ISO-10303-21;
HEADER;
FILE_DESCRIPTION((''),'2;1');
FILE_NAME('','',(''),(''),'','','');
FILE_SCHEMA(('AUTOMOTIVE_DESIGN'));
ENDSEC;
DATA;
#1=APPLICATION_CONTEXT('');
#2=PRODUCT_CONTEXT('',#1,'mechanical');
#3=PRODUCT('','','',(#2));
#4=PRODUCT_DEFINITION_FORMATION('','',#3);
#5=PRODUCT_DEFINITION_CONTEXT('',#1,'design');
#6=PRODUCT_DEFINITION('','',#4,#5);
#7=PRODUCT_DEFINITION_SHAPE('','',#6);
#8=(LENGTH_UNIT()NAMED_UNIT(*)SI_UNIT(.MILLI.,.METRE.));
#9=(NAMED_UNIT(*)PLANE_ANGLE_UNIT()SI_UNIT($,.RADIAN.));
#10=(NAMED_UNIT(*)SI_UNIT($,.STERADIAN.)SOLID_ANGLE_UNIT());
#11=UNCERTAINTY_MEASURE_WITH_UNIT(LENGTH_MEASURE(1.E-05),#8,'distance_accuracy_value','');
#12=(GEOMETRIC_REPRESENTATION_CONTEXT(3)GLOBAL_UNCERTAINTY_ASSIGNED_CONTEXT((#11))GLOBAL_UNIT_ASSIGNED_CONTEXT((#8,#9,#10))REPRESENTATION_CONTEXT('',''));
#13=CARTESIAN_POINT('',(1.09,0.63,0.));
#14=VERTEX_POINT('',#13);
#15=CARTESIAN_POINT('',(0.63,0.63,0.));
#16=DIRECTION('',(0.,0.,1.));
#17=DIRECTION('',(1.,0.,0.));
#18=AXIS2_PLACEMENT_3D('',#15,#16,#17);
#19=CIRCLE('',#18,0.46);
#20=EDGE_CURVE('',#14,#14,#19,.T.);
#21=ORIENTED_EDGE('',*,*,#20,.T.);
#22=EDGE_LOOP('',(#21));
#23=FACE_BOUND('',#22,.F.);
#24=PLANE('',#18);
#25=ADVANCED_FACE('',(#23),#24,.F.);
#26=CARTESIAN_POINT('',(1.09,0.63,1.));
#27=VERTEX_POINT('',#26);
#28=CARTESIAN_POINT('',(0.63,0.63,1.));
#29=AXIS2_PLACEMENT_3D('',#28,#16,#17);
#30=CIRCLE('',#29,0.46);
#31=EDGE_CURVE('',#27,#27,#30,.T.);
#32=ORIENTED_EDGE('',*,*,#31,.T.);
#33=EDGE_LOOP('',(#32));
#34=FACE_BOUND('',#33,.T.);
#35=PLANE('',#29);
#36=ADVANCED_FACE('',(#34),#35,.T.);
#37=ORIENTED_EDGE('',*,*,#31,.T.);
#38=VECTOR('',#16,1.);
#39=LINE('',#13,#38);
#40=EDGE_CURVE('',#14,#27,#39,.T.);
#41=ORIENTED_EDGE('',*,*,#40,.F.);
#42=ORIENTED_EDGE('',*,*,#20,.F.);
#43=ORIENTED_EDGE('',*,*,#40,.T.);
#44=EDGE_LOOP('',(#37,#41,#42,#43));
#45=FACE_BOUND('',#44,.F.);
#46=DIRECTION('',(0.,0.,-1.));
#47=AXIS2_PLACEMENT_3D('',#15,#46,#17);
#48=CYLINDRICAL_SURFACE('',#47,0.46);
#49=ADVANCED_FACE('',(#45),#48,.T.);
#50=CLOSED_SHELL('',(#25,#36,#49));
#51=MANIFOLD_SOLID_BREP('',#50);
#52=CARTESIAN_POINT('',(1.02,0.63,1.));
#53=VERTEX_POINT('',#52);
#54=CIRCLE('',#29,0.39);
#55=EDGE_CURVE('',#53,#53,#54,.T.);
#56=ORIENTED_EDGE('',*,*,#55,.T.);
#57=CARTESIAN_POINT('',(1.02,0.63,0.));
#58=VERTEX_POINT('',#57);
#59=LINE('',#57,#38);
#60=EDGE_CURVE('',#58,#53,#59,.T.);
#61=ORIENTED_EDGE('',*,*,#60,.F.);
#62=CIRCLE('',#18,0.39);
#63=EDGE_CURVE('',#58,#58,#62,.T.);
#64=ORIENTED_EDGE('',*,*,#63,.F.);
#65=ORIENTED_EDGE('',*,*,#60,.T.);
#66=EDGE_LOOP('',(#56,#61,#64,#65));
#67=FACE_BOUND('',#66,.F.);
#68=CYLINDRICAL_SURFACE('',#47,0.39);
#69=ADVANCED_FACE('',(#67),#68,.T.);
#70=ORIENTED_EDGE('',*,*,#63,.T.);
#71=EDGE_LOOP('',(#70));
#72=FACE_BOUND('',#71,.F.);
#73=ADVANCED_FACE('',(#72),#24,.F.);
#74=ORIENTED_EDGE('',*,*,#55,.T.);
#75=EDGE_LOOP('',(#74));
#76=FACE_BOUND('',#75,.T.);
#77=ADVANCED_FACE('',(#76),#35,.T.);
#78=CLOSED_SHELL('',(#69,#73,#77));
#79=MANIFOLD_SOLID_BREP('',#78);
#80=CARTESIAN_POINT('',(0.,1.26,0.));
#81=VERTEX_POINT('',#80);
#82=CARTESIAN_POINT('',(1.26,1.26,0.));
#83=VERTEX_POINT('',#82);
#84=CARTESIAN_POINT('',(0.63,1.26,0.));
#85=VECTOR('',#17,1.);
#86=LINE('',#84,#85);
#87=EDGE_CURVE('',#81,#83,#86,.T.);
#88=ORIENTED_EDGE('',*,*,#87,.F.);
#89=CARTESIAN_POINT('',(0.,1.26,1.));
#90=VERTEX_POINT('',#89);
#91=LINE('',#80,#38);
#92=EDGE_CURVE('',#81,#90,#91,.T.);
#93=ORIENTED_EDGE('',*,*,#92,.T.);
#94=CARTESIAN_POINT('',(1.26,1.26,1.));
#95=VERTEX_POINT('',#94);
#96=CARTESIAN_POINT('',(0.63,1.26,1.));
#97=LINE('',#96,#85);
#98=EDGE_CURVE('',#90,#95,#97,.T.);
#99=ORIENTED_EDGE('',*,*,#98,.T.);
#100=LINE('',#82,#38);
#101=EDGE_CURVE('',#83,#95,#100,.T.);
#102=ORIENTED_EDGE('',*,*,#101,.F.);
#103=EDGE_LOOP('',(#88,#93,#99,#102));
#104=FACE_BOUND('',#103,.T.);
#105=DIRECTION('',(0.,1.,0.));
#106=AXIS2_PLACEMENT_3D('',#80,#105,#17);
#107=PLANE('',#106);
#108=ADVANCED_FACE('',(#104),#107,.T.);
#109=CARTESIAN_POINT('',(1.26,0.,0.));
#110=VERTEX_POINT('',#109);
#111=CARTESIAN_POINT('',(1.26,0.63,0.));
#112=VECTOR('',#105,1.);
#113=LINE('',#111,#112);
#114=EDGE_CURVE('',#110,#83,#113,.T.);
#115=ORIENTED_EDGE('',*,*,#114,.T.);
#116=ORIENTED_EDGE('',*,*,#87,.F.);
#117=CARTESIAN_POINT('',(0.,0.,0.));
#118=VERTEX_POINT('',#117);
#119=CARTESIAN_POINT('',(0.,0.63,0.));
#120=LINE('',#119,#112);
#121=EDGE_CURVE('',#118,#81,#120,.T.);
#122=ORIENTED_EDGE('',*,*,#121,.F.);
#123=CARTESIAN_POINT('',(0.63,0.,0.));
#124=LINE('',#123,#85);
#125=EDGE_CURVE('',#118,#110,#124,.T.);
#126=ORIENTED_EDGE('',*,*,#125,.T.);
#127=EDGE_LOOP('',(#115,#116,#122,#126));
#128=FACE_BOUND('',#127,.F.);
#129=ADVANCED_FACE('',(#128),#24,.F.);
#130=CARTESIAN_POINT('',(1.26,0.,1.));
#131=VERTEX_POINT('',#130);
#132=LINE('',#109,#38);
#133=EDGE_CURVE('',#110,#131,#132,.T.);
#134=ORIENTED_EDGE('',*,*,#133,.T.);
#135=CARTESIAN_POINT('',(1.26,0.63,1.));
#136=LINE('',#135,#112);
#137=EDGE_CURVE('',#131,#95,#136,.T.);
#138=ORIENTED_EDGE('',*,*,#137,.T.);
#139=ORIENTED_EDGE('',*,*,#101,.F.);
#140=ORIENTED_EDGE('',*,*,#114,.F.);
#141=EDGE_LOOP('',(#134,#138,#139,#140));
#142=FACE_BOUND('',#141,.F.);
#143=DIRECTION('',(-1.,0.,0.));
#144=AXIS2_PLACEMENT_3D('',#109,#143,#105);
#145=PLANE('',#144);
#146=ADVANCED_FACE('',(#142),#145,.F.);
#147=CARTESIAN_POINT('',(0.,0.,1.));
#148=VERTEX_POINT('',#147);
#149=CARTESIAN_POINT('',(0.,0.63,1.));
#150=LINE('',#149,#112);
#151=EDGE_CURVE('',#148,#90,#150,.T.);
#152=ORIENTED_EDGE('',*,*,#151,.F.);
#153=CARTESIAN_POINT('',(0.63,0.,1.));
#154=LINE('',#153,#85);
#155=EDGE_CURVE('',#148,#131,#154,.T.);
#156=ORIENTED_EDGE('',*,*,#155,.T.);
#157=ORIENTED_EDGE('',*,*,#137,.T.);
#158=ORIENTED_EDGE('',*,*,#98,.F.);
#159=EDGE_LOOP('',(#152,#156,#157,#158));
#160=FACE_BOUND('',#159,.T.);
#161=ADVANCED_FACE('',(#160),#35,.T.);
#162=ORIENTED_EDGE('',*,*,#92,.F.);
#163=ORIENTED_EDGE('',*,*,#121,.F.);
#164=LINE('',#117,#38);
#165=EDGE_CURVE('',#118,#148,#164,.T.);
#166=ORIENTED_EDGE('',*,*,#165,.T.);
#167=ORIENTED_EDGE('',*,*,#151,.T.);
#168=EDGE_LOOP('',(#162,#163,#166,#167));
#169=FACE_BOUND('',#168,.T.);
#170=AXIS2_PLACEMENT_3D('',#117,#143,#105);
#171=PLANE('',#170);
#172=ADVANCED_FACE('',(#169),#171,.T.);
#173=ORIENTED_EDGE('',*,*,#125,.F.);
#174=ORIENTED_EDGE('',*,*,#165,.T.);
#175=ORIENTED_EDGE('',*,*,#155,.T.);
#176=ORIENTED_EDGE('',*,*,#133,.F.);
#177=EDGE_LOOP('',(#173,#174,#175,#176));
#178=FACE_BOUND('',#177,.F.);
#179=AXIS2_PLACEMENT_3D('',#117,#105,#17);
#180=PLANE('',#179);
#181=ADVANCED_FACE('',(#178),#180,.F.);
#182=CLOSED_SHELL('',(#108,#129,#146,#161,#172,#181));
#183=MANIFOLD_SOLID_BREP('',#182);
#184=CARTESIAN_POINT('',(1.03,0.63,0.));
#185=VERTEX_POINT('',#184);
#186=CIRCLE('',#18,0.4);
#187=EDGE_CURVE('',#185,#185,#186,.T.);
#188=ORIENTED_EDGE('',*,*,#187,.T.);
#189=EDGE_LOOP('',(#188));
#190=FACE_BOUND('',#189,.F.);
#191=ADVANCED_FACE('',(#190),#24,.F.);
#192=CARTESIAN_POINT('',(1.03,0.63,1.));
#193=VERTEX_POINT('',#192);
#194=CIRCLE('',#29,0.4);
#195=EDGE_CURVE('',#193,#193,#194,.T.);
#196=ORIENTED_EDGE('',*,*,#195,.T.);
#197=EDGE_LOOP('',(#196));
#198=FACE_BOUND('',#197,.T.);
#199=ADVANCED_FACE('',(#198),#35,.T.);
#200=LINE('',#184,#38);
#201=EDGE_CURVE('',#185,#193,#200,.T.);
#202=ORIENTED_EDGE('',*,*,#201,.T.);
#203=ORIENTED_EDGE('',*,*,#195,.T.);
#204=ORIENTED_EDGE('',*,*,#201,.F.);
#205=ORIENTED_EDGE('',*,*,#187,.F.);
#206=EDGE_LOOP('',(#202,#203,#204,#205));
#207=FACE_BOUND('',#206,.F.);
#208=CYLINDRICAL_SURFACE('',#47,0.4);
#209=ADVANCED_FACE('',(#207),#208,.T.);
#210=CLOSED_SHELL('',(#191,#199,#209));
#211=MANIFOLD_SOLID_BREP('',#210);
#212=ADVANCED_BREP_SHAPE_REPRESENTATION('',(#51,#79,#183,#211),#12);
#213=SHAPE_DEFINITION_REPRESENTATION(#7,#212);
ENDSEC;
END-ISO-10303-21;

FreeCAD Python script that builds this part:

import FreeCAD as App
import Part
import Sketcher

V = App.Vector
Q = App.Units.Quantity


def add_polygon(sketch, points):
    """Adds a closed chain of lines whose ends are joined by coincident constraints."""
    first, n = sketch.GeometryCount, len(points)
    for a, b in zip(points, points[1:] + points[:1]):
        sketch.addGeometry(Part.LineSegment(App.Vector(*a, 0), App.Vector(*b, 0)), False)
    for i in range(n):
        sketch.addConstraint(Sketcher.Constraint("Coincident", first + i, 2, first + (i + 1) % n, 1))

doc = App.newDocument("Part")
params = doc.addObject("Spreadsheet::Sheet", "Params")
for row, (alias, value) in enumerate([
    ("sketch1_width", "1.26 mm"),
    ("pad1_length", "1 mm"),
    ("sketch2_diameter", "0.78 mm"),
    ("pad2_length", "1 mm"),
    ("sketch3_diameter", "0.92 mm"),
    ("pad3_length", "1 mm"),
    ("sketch4_diameter", "0.8 mm"),
    ("pad4_length", "1 mm"),
], start=1):
    params.set(f"A{row}", alias)
    params.set(f"B{row}", "=" + value)
    params.setAlias(f"B{row}", alias)

body = doc.addObject("PartDesign::Body", "Body")

# Sketch on XY plane
sketch1 = body.newObject("Sketcher::SketchObject", "Sketch")
sketch1.AttachmentSupport = (doc.getObject("XY_Plane"), [""])
sketch1.MapMode = "FlatFace"
add_polygon(sketch1, [(0, 1.3), (0, 0), (1.3, 0), (1.3, 1.3)])  # lines 0-3
sketch1.addConstraint(Sketcher.Constraint("Vertical", 0))
sketch1.addConstraint(Sketcher.Constraint("Horizontal", 1))
sketch1.addConstraint(Sketcher.Constraint("Vertical", 2))
sketch1.addConstraint(Sketcher.Constraint("Horizontal", 3))
sketch1.addConstraint(Sketcher.Constraint("Coincident", 0, 2, -1, 1))
sketch1.addConstraint(Sketcher.Constraint("Equal", 3, 0))
sketch1.addConstraint(Sketcher.Constraint("DistanceX", 1, 1, 1, 2, Q("1.26 mm")))
sketch1.setExpression("Constraints[10]", "Params.sketch1_width")
pad1 = body.newObject("PartDesign::Pad", "Pad")
pad1.Profile = sketch1
pad1.setExpression("Length", "Params.pad1_length")
body2 = doc.addObject("PartDesign::Body", "Body001")

# Sketch on XY plane
sketch2 = body2.newObject("Sketcher::SketchObject", "Sketch001")
sketch2.AttachmentSupport = (doc.getObject("XY_Plane001"), [""])
sketch2.MapMode = "FlatFace"
sketch2.addGeometry(Part.Circle(V(0.63, 0.63, 0), V(0, 0, 1), 0.39), False)
sketch2.addConstraint(Sketcher.Constraint("Diameter", 0, Q("0.78 mm")))
sketch2.addConstraint(Sketcher.Constraint("DistanceX", -1, 1, 0, 3, Q("0.63 mm")))
sketch2.addConstraint(Sketcher.Constraint("DistanceY", -1, 1, 0, 3, Q("0.63 mm")))
sketch2.setExpression("Constraints[0]", "Params.sketch2_diameter")
pad2 = body2.newObject("PartDesign::Pad", "Pad001")
pad2.Profile = sketch2
pad2.setExpression("Length", "Params.pad2_length")
body3 = doc.addObject("PartDesign::Body", "Body002")

# Sketch on XY plane
sketch3 = body3.newObject("Sketcher::SketchObject", "Sketch002")
sketch3.AttachmentSupport = (doc.getObject("XY_Plane002"), [""])
sketch3.MapMode = "FlatFace"
sketch3.addGeometry(Part.Circle(V(0.63, 0.63, 0), V(0, 0, 1), 0.46), False)
sketch3.addConstraint(Sketcher.Constraint("Diameter", 0, Q("0.92 mm")))
sketch3.addConstraint(Sketcher.Constraint("DistanceX", -1, 1, 0, 3, Q("0.63 mm")))
sketch3.addConstraint(Sketcher.Constraint("DistanceY", -1, 1, 0, 3, Q("0.63 mm")))
sketch3.setExpression("Constraints[0]", "Params.sketch3_diameter")
pad3 = body3.newObject("PartDesign::Pad", "Pad002")
pad3.Profile = sketch3
pad3.setExpression("Length", "Params.pad3_length")
body4 = doc.addObject("PartDesign::Body", "Body003")

# Sketch on XY plane
sketch4 = body4.newObject("Sketcher::SketchObject", "Sketch003")
sketch4.AttachmentSupport = (doc.getObject("XY_Plane003"), [""])
sketch4.MapMode = "FlatFace"
sketch4.addGeometry(Part.Circle(V(0.63, 0.63, 0), V(0, 0, 1), 0.4), False)
sketch4.addConstraint(Sketcher.Constraint("Diameter", 0, Q("0.8 mm")))
sketch4.addConstraint(Sketcher.Constraint("DistanceX", -1, 1, 0, 3, Q("0.63 mm")))
sketch4.addConstraint(Sketcher.Constraint("DistanceY", -1, 1, 0, 3, Q("0.63 mm")))
sketch4.setExpression("Constraints[0]", "Params.sketch4_diameter")
pad4 = body4.newObject("PartDesign::Pad", "Pad003")
pad4.Profile = sketch4
pad4.setExpression("Length", "Params.pad4_length")

doc.recompute()
